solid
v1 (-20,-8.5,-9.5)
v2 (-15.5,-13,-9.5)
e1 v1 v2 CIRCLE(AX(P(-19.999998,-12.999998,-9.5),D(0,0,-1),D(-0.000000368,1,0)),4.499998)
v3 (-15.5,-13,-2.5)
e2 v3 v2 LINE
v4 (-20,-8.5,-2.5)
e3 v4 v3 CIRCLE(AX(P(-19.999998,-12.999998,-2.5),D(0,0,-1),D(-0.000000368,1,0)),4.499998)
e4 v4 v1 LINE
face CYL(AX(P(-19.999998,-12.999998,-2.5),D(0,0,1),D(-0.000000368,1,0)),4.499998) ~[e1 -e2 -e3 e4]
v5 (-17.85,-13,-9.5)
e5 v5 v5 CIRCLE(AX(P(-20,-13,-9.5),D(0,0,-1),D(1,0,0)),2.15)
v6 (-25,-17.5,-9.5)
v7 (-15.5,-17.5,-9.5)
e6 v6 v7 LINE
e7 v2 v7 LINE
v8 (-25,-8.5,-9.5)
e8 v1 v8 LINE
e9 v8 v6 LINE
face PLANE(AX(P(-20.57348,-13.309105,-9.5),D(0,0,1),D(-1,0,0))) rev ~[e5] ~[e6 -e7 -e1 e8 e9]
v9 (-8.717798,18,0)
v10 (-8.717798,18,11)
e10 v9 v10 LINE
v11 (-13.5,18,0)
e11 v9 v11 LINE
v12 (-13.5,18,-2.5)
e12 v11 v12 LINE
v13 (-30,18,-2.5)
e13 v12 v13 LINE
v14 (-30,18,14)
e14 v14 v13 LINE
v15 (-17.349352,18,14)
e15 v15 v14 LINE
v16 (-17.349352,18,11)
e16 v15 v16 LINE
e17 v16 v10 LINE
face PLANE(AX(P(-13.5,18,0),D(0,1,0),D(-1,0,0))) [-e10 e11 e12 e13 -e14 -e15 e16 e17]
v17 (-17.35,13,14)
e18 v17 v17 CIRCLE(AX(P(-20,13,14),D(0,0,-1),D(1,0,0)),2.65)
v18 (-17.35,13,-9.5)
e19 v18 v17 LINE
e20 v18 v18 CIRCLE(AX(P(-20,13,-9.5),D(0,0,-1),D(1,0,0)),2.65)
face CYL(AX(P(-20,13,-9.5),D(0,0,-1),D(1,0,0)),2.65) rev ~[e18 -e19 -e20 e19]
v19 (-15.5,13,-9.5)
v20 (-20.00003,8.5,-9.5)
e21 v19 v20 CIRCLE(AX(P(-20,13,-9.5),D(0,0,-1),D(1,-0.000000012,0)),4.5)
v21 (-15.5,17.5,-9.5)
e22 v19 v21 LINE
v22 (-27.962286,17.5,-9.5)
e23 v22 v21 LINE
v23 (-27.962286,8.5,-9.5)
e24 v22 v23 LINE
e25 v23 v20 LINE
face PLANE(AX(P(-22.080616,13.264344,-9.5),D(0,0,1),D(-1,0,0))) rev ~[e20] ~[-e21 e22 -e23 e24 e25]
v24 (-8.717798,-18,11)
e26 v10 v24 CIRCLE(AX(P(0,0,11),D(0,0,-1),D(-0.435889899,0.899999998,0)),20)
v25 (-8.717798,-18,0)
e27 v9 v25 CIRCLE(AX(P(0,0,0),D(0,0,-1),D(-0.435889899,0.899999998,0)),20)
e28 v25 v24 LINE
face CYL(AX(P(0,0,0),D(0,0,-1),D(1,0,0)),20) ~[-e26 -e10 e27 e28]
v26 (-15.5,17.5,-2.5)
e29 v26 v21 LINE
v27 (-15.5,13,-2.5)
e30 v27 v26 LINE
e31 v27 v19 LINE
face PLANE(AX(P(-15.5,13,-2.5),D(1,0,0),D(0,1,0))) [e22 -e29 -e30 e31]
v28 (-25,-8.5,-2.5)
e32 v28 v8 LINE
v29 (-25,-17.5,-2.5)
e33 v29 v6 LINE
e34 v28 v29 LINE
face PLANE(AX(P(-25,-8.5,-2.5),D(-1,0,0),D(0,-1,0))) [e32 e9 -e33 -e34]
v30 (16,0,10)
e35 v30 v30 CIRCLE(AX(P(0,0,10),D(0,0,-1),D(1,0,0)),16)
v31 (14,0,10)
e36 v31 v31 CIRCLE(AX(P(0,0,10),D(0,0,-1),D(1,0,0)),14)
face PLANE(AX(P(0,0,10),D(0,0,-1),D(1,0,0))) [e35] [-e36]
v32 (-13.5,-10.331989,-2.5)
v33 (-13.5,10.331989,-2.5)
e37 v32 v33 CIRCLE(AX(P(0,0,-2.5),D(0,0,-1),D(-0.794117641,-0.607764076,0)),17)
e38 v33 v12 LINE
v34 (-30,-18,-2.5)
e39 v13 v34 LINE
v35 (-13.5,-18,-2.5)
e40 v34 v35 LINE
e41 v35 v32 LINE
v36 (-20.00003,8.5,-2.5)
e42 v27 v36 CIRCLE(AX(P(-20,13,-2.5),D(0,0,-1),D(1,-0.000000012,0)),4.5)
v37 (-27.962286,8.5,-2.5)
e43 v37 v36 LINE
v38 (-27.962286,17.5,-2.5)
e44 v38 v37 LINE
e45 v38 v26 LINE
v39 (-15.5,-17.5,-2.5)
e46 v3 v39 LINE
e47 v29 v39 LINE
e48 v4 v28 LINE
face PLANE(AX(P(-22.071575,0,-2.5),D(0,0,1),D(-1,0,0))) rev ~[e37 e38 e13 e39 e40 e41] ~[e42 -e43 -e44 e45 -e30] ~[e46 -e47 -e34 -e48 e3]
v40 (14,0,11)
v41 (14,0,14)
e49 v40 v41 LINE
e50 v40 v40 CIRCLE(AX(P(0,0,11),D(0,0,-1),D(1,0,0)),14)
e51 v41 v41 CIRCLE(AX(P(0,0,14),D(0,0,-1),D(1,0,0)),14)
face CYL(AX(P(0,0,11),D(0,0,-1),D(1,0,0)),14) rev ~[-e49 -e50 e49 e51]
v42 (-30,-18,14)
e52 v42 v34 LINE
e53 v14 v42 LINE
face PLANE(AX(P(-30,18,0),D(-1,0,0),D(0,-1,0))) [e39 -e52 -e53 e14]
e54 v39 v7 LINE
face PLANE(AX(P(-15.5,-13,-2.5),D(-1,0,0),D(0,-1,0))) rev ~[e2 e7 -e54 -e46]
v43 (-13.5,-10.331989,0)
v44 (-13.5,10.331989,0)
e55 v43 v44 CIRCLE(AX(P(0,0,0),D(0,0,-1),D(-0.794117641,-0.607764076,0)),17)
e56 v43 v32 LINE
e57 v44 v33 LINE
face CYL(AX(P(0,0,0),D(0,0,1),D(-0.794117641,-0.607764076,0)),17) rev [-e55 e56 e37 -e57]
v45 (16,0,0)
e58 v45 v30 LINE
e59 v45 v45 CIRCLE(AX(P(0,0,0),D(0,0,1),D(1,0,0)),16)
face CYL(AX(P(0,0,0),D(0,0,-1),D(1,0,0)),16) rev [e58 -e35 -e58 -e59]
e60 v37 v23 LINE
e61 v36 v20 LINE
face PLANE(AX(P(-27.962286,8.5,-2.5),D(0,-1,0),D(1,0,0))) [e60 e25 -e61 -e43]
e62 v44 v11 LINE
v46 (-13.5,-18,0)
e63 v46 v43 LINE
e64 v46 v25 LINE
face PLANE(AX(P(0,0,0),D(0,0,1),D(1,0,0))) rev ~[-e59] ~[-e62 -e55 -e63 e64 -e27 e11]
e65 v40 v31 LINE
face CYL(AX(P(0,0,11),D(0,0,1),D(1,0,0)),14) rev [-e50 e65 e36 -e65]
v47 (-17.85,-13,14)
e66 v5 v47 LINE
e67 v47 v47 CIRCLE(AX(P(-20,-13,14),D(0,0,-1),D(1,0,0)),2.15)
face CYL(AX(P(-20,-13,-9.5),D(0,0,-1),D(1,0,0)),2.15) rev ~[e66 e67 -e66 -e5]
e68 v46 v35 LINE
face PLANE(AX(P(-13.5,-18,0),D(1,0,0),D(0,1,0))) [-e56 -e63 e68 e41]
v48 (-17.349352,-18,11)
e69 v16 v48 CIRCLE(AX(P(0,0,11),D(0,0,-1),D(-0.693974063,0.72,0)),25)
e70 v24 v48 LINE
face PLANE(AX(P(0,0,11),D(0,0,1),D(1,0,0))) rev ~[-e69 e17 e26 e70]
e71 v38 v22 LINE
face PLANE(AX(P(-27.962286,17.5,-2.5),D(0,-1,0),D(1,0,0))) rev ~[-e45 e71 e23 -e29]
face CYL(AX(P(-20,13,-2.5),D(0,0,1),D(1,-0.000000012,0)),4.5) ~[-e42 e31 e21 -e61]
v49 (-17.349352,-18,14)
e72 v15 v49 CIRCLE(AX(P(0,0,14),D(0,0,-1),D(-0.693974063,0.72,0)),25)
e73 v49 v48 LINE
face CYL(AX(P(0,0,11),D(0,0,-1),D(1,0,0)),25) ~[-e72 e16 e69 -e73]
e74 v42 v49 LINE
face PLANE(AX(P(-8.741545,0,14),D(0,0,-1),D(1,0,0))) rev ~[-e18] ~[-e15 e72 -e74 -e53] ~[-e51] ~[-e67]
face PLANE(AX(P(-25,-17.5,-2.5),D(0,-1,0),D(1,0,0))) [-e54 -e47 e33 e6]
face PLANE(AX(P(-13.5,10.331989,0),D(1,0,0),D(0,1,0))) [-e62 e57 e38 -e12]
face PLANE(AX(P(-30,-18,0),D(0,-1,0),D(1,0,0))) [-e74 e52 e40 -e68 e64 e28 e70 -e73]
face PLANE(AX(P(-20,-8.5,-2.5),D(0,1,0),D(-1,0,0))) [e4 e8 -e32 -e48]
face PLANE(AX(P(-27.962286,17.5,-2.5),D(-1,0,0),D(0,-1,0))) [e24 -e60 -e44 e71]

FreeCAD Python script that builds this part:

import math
import FreeCAD as App
import Part
import Sketcher

V = App.Vector

doc = App.newDocument("Part")
body = doc.addObject("PartDesign::Body", "Body")

# Sketch on XY plane
sketch1 = body.newObject("Sketcher::SketchObject", "Sketch")
sketch1.AttachmentSupport = (doc.getObject("XY_Plane"), [""])
sketch1.MapMode = "FlatFace"
sketch1.addGeometry([
    Part.Circle(V(0, 0, 0), V(0, 0, 1), 20),
    Part.Circle(V(0, 0, 0), V(0, 0, 1), 16),
], False)
sketch1.addConstraint([
    Sketcher.Constraint("Coincident", 0, 3, -1, 1),
    Sketcher.Constraint("Coincident", 1, 3, -1, 1),
    Sketcher.Constraint("Diameter", 0, 40.0),
    Sketcher.Constraint("Diameter", 1, 32.0),
])
pad1 = body.newObject("PartDesign::Pad", "Pad")
pad1.Profile = sketch1
pad1.Length = 11

# Sketch on XY plane
sketch2 = body.newObject("Sketcher::SketchObject", "Sketch001")
sketch2.AttachmentSupport = (doc.getObject("XY_Plane"), [""])
sketch2.MapMode = "FlatFace"
sketch2.AttachmentOffset = App.Placement(V(0, 0, 11), App.Rotation())
sketch2.addGeometry(Part.Circle(V(0, 0, 0), V(0, 0, 1), 25), False)
sketch2.addConstraint([
    Sketcher.Constraint("Coincident", 0, 3, -1, 1),
    Sketcher.Constraint("Diameter", 0, 50.0),
])
pad2 = body.newObject("PartDesign::Pad", "Pad001")
pad2.Profile = sketch2
pad2.Length = 3

# Sketch on XY plane
sketch3 = body.newObject("Sketcher::SketchObject", "Sketch002")
sketch3.AttachmentSupport = (doc.getObject("XY_Plane"), [""])
sketch3.MapMode = "FlatFace"
sketch3.AttachmentOffset = App.Placement(V(0, 0, 11), App.Rotation())
sketch3.addGeometry([
    Part.Circle(V(0, 0, 0), V(0, 0, 1), 16),
    Part.Circle(V(0, 0, 0), V(0, 0, 1), 14),
], False)
sketch3.addConstraint([
    Sketcher.Constraint("Coincident", 0, 3, -1, 1),
    Sketcher.Constraint("Coincident", 1, 3, -1, 1),
    Sketcher.Constraint("Diameter", 0, 32.0),
    Sketcher.Constraint("Diameter", 1, 28.0),
])
pad3 = body.newObject("PartDesign::Pad", "Pad002")
pad3.Profile = sketch3
pad3.Length = 1
pad3.Reversed = True

# Sketch on XY plane
sketch4 = body.newObject("Sketcher::SketchObject", "Sketch003")
sketch4.AttachmentSupport = (doc.getObject("XY_Plane"), [""])
sketch4.MapMode = "FlatFace"
sketch4.AttachmentOffset = App.Placement(V(0, 0, 11), App.Rotation())
sketch4.addGeometry(Part.Circle(V(0, 0, 0), V(0, 0, 1), 14), False)
sketch4.addConstraint([
    Sketcher.Constraint("Coincident", 0, 3, -1, 1),
    Sketcher.Constraint("Diameter", 0, 28.0),
])
pocket1 = body.newObject("PartDesign::Pocket", "Pocket")
pocket1.Profile = sketch4
pocket1.Type = "ThroughAll"
pocket1.Reversed = True

# Sketch on XY plane
sketch5 = body.newObject("Sketcher::SketchObject", "Sketch004")
sketch5.AttachmentSupport = (doc.getObject("XY_Plane"), [""])
sketch5.MapMode = "FlatFace"
sketch5.addGeometry([
    Part.ArcOfCircle(Part.Circle(V(0, 0, 0), V(0, 0, 1), 20), math.radians(-116), math.radians(116)),  # 0
    Part.LineSegment(V(-9, -18, 0), V(-30, -18, 0)),  # 1
    Part.LineSegment(V(-30, -18, 0), V(-30, 18, 0)),  # 2
    Part.LineSegment(V(-30, 18, 0), V(-9, 18, 0)),  # 3
    Part.Circle(V(0, 0, 0), V(0, 0, 1), 16),  # 4
], False)
sketch5.addConstraint([
    Sketcher.Constraint("Coincident", 0, 1, 1, 1),
    Sketcher.Constraint("Coincident", 1, 2, 2, 1),
    Sketcher.Constraint("Coincident", 2, 2, 3, 1),
    Sketcher.Constraint("Coincident", 3, 2, 0, 2),
    Sketcher.Constraint("Horizontal", 1),
    Sketcher.Constraint("Vertical", 2),
    Sketcher.Constraint("Horizontal", 3),
    Sketcher.Constraint("Coincident", 0, 3, -1, 1),
    Sketcher.Constraint("Coincident", 4, 3, -1, 1),
    Sketcher.Constraint("Vertical", 0, 1, 3, 2),
    Sketcher.Constraint("Diameter", 4, 32.0),
    Sketcher.Constraint("Radius", 0, 20.0),
    Sketcher.Constraint("DistanceY", 2, 1, 2, 2, 36.0),
    Sketcher.Constraint("DistanceX", 1, 2, -1, 1, 30.0),
])
pad4 = body.newObject("PartDesign::Pad", "Pad003")
pad4.Profile = sketch5
pad4.Length = 14

# Sketch on XY plane
sketch6 = body.newObject("Sketcher::SketchObject", "Sketch005")
sketch6.AttachmentSupport = (doc.getObject("XY_Plane"), [""])
sketch6.MapMode = "FlatFace"
sketch6.addGeometry([
    Part.LineSegment(V(-14, -18, 0), V(-30, -18, 0)),  # 0
    Part.LineSegment(V(-30, -18, 0), V(-30, 18, 0)),  # 1
    Part.LineSegment(V(-30, 18, 0), V(-14, 18, 0)),  # 2
    Part.LineSegment(V(-14, 18, 0), V(-14, 10, 0)),  # 3
    Part.ArcOfCircle(Part.Circle(V(0, 0, 0), V(0, 0, 1), 17), math.radians(143), math.radians(217)),  # 4
    Part.LineSegment(V(-14, -10, 0), V(-14, -18, 0)),  # 5
], False)
sketch6.addConstraint([
    Sketcher.Constraint("Coincident", 0, 2, 1, 1),
    Sketcher.Constraint("Coincident", 1, 2, 2, 1),
    Sketcher.Constraint("Coincident", 2, 2, 3, 1),
    Sketcher.Constraint("Coincident", 3, 2, 4, 1),
    Sketcher.Constraint("Coincident", 4, 2, 5, 1),
    Sketcher.Constraint("Coincident", 5, 2, 0, 1),
    Sketcher.Constraint("Horizontal", 0),
    Sketcher.Constraint("Vertical", 1),
    Sketcher.Constraint("Horizontal", 2),
    Sketcher.Constraint("Vertical", 3),
    Sketcher.Constraint("Vertical", 5),
    Sketcher.Constraint("Coincident", 4, 3, -1, 1),
    Sketcher.Constraint("Symmetric", 2, 2, 5, 2, -1),
    Sketcher.Constraint("Radius", 4, 17.0),
    Sketcher.Constraint("DistanceY", 1, 1, 1, 2, 36.0),
    Sketcher.Constraint("DistanceX", 0, 2, 0, 1, 16.5),
    Sketcher.Constraint("DistanceX", 0, 2, -1, 1, 30.0),
])
pad5 = body.newObject("PartDesign::Pad", "Pad004")
pad5.Profile = sketch6
pad5.Length = 2.5
pad5.Reversed = True

# Sketch on XY plane
sketch7 = body.newObject("Sketcher::SketchObject", "Sketch006")
sketch7.AttachmentSupport = (doc.getObject("XY_Plane"), [""])
sketch7.MapMode = "FlatFace"
sketch7.AttachmentOffset = App.Placement(V(0, 0, -2.5), App.Rotation())
sketch7.addGeometry([
    Part.LineSegment(V(-20, 8.5, 0), V(-28, 8.5, 0)),  # 0
    Part.LineSegment(V(-28, 8.5, 0), V(-28, 17.5, 0)),  # 1
    Part.LineSegment(V(-28, 17.5, 0), V(-15.5, 17.5, 0)),  # 2
    Part.LineSegment(V(-15.5, 17.5, 0), V(-15.5, 13, 0)),  # 3
    Part.ArcOfCircle(Part.Circle(V(-20, 13, 0), V(0, 0, 1), 4.5), math.radians(-90), math.radians(0)),  # 4
    Part.LineSegment(V(-15.5, -17.5, 0), V(-25, -17.5, 0)),  # 5
    Part.LineSegment(V(-25, -17.5, 0), V(-25, -8.5, 0)),  # 6
    Part.LineSegment(V(-25, -8.5, 0), V(-20, -8.5, 0)),  # 7
    Part.ArcOfCircle(Part.Circle(V(-20, -13, 0), V(0, 0, 1), 4.5), math.radians(0), math.radians(90)),  # 8
    Part.LineSegment(V(-15.5, -13, 0), V(-15.5, -17.5, 0)),  # 9
], False)
sketch7.addConstraint([
    Sketcher.Constraint("Coincident", 0, 2, 1, 1),
    Sketcher.Constraint("Coincident", 1, 2, 2, 1),
    Sketcher.Constraint("Coincident", 2, 2, 3, 1),
    Sketcher.Constraint("Tangent", 3, 2, 4, 2),
    Sketcher.Constraint("Coincident", 4, 1, 0, 1),
    Sketcher.Constraint("Coincident", 5, 2, 6, 1),
    Sketcher.Constraint("Coincident", 6, 2, 7, 1),
    Sketcher.Constraint("Tangent", 7, 2, 8, 2),
    Sketcher.Constraint("Tangent", 8, 1, 9, 1),
    Sketcher.Constraint("Coincident", 9, 2, 5, 1),
    Sketcher.Constraint("Horizontal", 0),
    Sketcher.Constraint("Vertical", 1),
    Sketcher.Constraint("Horizontal", 2),
    Sketcher.Constraint("Vertical", 3),
    Sketcher.Constraint("Horizontal", 5),
    Sketcher.Constraint("Vertical", 6),
    Sketcher.Constraint("Horizontal", 7),
    Sketcher.Constraint("Vertical", 9),
    Sketcher.Constraint("Equal", 4, 8),
    Sketcher.Constraint("Symmetric", 4, 3, 8, 3, -1),
    Sketcher.Constraint("Equal", 1, 6),
    Sketcher.Constraint("Radius", 4, 4.5),
    Sketcher.Constraint("DistanceX", 7, 1, 7, 2, 5.0),
    Sketcher.Constraint("DistanceY", 1, 1, 1, 2, 9.0),
    Sketcher.Constraint("DistanceX", 4, 3, -1, 1, 20.0),
    Sketcher.Constraint("DistanceY", -1, 1, 4, 3, 13.0),
    Sketcher.Constraint("DistanceX", 0, 2, 0, 1, 7.962256),
    Sketcher.Constraint("DistanceX", 2, 1, 2, 2, 12.462286),
])
pad6 = body.newObject("PartDesign::Pad", "Pad005")
pad6.Profile = sketch7
pad6.Length = 7
pad6.Reversed = True

# Sketch on XY plane
sketch8 = body.newObject("Sketcher::SketchObject", "Sketch007")
sketch8.AttachmentSupport = (doc.getObject("XY_Plane"), [""])
sketch8.MapMode = "FlatFace"
sketch8.AttachmentOffset = App.Placement(V(0, 0, -9.5), App.Rotation())
sketch8.addGeometry([
    Part.Circle(V(-20, -13, 0), V(0, 0, 1), 2.1),
    Part.Circle(V(-20, 13, 0), V(0, 0, 1), 2.6),
], False)
sketch8.addConstraint([
    Sketcher.Constraint("Symmetric", 0, 3, 1, 3, -1),
    Sketcher.Constraint("Diameter", 0, 4.3),
    Sketcher.Constraint("Diameter", 1, 5.3),
    Sketcher.Constraint("DistanceX", 0, 3, -1, 1, 20.0),
    Sketcher.Constraint("DistanceY", 0, 3, -1, 1, 13.0),
])
pocket2 = body.newObject("PartDesign::Pocket", "Pocket001")
pocket2.Profile = sketch8
pocket2.Type = "ThroughAll"
pocket2.Reversed = True

doc.recompute()
